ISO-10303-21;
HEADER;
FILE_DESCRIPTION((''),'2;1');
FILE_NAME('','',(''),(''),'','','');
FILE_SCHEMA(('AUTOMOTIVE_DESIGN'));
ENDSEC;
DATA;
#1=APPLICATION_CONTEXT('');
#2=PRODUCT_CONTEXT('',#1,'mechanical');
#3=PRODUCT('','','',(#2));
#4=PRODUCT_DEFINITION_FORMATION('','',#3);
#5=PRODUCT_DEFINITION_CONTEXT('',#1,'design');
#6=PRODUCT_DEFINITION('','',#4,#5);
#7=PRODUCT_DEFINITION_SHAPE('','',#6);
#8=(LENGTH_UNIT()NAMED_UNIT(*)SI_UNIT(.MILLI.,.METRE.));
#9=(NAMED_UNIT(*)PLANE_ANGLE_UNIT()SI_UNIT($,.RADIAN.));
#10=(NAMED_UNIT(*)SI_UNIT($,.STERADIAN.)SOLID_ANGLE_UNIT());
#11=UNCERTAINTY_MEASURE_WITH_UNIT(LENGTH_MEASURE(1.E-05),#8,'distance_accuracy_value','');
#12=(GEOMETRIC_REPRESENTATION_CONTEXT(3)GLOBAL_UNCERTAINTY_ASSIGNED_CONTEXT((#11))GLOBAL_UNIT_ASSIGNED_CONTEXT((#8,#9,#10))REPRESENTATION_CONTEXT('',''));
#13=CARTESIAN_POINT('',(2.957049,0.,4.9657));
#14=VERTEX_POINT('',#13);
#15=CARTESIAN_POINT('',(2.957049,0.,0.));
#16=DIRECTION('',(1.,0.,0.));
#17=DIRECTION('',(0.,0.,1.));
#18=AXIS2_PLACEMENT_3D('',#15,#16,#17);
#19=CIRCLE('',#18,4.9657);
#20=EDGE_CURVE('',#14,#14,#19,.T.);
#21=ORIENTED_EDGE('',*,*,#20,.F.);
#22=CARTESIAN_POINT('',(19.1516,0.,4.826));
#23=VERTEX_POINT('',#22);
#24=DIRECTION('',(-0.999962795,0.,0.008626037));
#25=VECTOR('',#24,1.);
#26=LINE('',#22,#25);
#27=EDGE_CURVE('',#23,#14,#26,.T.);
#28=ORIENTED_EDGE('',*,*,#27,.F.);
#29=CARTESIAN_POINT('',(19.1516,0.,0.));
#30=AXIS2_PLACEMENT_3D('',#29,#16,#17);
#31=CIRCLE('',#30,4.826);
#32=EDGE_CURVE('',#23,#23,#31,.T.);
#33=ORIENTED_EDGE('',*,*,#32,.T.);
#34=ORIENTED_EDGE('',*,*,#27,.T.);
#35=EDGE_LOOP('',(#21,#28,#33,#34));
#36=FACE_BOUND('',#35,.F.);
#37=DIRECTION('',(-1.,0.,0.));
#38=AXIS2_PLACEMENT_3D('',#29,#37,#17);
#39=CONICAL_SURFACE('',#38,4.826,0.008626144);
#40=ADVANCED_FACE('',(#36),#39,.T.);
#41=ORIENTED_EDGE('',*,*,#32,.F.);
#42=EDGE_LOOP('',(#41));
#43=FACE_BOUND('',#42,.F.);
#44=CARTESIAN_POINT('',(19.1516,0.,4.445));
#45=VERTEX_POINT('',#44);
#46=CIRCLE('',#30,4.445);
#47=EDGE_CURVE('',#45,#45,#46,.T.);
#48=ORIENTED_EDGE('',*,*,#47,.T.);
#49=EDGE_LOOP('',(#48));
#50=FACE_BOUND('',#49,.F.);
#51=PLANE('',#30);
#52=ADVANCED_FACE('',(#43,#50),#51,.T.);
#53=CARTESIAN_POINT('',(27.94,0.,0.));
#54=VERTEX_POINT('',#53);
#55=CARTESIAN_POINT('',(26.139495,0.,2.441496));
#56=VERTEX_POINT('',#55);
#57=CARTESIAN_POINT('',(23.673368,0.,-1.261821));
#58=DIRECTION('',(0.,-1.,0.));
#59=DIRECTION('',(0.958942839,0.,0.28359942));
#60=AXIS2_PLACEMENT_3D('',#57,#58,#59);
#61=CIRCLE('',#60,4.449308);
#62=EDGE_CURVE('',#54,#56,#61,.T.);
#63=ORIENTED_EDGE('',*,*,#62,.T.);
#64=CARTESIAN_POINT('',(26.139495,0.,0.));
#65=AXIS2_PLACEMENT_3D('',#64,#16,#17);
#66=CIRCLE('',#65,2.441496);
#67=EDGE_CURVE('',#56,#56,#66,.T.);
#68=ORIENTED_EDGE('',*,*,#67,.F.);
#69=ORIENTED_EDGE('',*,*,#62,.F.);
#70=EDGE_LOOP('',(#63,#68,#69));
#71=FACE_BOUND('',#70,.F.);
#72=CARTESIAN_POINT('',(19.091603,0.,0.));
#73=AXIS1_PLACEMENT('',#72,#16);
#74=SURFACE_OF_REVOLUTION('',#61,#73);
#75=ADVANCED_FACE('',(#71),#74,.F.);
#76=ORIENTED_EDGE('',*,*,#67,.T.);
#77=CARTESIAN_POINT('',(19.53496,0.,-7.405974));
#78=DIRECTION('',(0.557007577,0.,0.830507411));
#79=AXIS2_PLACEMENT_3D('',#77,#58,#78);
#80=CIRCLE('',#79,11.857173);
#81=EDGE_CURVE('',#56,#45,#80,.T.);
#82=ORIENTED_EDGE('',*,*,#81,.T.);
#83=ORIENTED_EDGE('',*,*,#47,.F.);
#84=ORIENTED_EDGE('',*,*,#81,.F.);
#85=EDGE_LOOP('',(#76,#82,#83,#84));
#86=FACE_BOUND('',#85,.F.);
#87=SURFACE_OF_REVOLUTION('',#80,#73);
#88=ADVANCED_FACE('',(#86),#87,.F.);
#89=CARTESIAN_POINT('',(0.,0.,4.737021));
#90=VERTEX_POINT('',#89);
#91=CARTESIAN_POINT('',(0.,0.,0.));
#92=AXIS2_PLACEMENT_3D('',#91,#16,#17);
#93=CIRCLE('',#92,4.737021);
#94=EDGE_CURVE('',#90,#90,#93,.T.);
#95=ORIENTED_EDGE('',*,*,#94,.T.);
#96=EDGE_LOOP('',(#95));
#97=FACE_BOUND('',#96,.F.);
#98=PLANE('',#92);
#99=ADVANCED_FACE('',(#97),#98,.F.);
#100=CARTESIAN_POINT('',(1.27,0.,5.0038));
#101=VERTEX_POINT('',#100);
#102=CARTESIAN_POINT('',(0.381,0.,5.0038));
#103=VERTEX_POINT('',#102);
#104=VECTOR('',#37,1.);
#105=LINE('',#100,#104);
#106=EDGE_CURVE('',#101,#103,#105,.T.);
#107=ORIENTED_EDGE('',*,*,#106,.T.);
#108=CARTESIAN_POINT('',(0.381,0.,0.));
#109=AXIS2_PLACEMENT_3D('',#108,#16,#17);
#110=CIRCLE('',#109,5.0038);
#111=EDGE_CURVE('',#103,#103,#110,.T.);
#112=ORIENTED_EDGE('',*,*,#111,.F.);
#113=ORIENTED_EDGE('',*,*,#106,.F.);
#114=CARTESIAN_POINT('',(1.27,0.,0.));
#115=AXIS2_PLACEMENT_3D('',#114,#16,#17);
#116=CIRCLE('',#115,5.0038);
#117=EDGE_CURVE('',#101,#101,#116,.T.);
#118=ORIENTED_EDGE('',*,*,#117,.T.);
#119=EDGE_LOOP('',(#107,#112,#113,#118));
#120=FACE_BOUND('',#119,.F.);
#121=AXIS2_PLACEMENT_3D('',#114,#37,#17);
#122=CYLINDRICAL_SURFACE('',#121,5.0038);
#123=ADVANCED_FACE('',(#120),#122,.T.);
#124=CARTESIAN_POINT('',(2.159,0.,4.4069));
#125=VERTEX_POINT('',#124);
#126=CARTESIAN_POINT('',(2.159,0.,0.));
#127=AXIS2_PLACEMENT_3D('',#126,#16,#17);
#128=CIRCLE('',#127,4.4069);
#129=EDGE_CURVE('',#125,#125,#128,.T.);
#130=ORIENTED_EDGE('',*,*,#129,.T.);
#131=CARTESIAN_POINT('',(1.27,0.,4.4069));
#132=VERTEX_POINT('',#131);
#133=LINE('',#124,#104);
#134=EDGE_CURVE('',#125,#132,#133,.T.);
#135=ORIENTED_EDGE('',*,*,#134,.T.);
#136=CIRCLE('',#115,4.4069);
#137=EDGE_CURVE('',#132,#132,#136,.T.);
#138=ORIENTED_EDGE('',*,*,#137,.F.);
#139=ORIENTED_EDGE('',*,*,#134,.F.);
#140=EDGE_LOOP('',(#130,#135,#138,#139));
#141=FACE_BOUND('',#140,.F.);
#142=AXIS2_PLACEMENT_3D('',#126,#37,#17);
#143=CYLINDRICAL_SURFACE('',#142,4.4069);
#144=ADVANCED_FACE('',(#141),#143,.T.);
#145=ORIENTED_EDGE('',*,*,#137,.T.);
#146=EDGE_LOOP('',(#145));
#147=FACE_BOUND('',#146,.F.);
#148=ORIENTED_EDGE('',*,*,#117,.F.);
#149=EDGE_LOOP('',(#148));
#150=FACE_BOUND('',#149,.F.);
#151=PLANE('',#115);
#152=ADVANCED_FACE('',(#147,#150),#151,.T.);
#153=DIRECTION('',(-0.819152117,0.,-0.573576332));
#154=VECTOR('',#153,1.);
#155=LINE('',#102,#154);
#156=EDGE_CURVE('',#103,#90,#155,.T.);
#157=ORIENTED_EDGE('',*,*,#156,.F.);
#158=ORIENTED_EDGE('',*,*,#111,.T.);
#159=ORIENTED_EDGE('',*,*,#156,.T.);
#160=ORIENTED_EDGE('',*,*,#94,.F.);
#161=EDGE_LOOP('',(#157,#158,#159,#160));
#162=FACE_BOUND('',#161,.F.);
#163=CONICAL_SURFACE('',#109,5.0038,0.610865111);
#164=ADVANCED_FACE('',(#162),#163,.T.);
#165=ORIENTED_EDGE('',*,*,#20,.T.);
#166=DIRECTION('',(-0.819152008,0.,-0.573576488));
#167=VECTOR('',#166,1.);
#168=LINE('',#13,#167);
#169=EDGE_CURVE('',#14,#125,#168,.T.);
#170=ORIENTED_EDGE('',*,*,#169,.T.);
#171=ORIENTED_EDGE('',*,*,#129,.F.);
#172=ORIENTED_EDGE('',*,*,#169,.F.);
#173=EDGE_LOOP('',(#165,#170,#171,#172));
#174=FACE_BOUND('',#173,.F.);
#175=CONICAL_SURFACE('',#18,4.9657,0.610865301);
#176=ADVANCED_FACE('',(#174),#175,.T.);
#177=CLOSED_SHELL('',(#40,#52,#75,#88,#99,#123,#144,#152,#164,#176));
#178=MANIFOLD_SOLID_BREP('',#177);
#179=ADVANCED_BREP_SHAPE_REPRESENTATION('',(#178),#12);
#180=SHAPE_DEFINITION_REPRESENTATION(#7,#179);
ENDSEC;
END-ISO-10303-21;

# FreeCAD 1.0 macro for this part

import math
import FreeCAD as App
import Part
import Sketcher
from FreeCAD import Vector
Q = App.Units.Quantity

doc = App.newDocument("Part")
body = doc.addObject("PartDesign::Body", "Body")

# Sketch on XZ plane
sketch1 = doc.addObject("Sketcher::SketchObject", "Sketch")
body.addObject(sketch1)
sketch1.AttachmentSupport = (doc.XZ_Plane, [""])
sketch1.MapMode = "FlatFace"
sketch1.addGeometry(Part.LineSegment(Vector(0, 4.74, 0), Vector(0, 0, 0)), False)
sketch1.addGeometry(Part.LineSegment(Vector(0, 0, 0), Vector(27.94, 0, 0)), False)
sketch1.addGeometry(Part.ArcOfCircle(Part.Circle(Vector(23.67, -1.26, 0), Vector(0, 0, 1), 4.45), math.radians(16), math.radians(56)), False)
sketch1.addGeometry(Part.ArcOfCircle(Part.Circle(Vector(19.53, -7.41, 0), Vector(0, 0, 1), 11.86), math.radians(56), math.radians(92)), False)
sketch1.addGeometry(Part.LineSegment(Vector(19.15, 4.45, 0), Vector(19.15, 4.83, 0)), False)
sketch1.addGeometry(Part.LineSegment(Vector(19.15, 4.83, 0), Vector(2.96, 4.97, 0)), False)
sketch1.addGeometry(Part.LineSegment(Vector(2.96, 4.97, 0), Vector(2.16, 4.41, 0)), False)
sketch1.addGeometry(Part.LineSegment(Vector(2.16, 4.41, 0), Vector(1.27, 4.41, 0)), False)
sketch1.addGeometry(Part.LineSegment(Vector(1.27, 4.41, 0), Vector(1.27, 5, 0)), False)
sketch1.addGeometry(Part.LineSegment(Vector(1.27, 5, 0), Vector(0.38, 5, 0)), False)
sketch1.addGeometry(Part.LineSegment(Vector(0.38, 5, 0), Vector(0, 4.74, 0)), False)
sketch1.addConstraint(Sketcher.Constraint("Coincident", 0, 2, 1, 1))
sketch1.addConstraint(Sketcher.Constraint("Coincident", 1, 2, 2, 1))
sketch1.addConstraint(Sketcher.Constraint("Coincident", 2, 2, 3, 1))
sketch1.addConstraint(Sketcher.Constraint("Coincident", 3, 2, 4, 1))
sketch1.addConstraint(Sketcher.Constraint("Coincident", 4, 2, 5, 1))
sketch1.addConstraint(Sketcher.Constraint("Coincident", 5, 2, 6, 1))
sketch1.addConstraint(Sketcher.Constraint("Coincident", 6, 2, 7, 1))
sketch1.addConstraint(Sketcher.Constraint("Coincident", 7, 2, 8, 1))
sketch1.addConstraint(Sketcher.Constraint("Coincident", 8, 2, 9, 1))
sketch1.addConstraint(Sketcher.Constraint("Coincident", 9, 2, 10, 1))
sketch1.addConstraint(Sketcher.Constraint("Coincident", 10, 2, 0, 1))
sketch1.addConstraint(Sketcher.Constraint("Vertical", 0))
sketch1.addConstraint(Sketcher.Constraint("Horizontal", 1))
sketch1.addConstraint(Sketcher.Constraint("Vertical", 4))
sketch1.addConstraint(Sketcher.Constraint("Horizontal", 7))
sketch1.addConstraint(Sketcher.Constraint("Vertical", 8))
sketch1.addConstraint(Sketcher.Constraint("Horizontal", 9))
sketch1.addConstraint(Sketcher.Constraint("Coincident", 0, 2, -1, 1))
sketch1.addConstraint(Sketcher.Constraint("Parallel", 6, 10))
sketch1.addConstraint(Sketcher.Constraint("Equal", 7, 9))
sketch1.addConstraint(Sketcher.Constraint("DistanceX", 1, 1, 1, 2, Q("1.1 in")))
sketch1.addConstraint(Sketcher.Constraint("Angle", 6, Q("-144.999996 deg")))
sketch1.addConstraint(Sketcher.Constraint("DistanceX", 7, 2, 7, 1, Q("0.035 in")))
sketch1.addConstraint(Sketcher.Constraint("DistanceY", 4, 1, 4, 2, Q("0.015 in")))
sketch1.addConstraint(Sketcher.Constraint("DistanceY", -1, 1, 4, 2, Q("0.19 in")))
sketch1.addConstraint(Sketcher.Constraint("DistanceX", -1, 1, 7, 2, Q("0.05 in")))
sketch1.addConstraint(Sketcher.Constraint("DistanceY", 8, 1, 8, 2, Q("0.0235 in")))
sketch1.addConstraint(Sketcher.Constraint("DistanceX", -1, 1, 3, 2, Q("0.754 in")))
sketch1.addConstraint(Sketcher.Constraint("DistanceY", -1, 1, 8, 2, Q("0.197 in")))
sketch1.addConstraint(Sketcher.Constraint("DistanceY", 6, 2, 5, 2, Q("0.022 in")))
sketch1.addConstraint(Sketcher.Constraint("Radius", 2, Q("4.449308 mm")))
sketch1.addConstraint(Sketcher.Constraint("Radius", 3, Q("11.857173 mm")))
sketch1.addConstraint(Sketcher.Constraint("DistanceY", 2, 3, 2, 2, Q("0.1457999 in")))
sketch1.addConstraint(Sketcher.Constraint("DistanceX", -1, 1, 2, 3, Q("23.673368 mm")))
revolution = doc.addObject("PartDesign::Revolution", "Revolution")
body.addObject(revolution)
revolution.Profile = sketch1
revolution.ReferenceAxis = (sketch1, ["H_Axis"])
revolution.Angle = 360

doc.recompute()
